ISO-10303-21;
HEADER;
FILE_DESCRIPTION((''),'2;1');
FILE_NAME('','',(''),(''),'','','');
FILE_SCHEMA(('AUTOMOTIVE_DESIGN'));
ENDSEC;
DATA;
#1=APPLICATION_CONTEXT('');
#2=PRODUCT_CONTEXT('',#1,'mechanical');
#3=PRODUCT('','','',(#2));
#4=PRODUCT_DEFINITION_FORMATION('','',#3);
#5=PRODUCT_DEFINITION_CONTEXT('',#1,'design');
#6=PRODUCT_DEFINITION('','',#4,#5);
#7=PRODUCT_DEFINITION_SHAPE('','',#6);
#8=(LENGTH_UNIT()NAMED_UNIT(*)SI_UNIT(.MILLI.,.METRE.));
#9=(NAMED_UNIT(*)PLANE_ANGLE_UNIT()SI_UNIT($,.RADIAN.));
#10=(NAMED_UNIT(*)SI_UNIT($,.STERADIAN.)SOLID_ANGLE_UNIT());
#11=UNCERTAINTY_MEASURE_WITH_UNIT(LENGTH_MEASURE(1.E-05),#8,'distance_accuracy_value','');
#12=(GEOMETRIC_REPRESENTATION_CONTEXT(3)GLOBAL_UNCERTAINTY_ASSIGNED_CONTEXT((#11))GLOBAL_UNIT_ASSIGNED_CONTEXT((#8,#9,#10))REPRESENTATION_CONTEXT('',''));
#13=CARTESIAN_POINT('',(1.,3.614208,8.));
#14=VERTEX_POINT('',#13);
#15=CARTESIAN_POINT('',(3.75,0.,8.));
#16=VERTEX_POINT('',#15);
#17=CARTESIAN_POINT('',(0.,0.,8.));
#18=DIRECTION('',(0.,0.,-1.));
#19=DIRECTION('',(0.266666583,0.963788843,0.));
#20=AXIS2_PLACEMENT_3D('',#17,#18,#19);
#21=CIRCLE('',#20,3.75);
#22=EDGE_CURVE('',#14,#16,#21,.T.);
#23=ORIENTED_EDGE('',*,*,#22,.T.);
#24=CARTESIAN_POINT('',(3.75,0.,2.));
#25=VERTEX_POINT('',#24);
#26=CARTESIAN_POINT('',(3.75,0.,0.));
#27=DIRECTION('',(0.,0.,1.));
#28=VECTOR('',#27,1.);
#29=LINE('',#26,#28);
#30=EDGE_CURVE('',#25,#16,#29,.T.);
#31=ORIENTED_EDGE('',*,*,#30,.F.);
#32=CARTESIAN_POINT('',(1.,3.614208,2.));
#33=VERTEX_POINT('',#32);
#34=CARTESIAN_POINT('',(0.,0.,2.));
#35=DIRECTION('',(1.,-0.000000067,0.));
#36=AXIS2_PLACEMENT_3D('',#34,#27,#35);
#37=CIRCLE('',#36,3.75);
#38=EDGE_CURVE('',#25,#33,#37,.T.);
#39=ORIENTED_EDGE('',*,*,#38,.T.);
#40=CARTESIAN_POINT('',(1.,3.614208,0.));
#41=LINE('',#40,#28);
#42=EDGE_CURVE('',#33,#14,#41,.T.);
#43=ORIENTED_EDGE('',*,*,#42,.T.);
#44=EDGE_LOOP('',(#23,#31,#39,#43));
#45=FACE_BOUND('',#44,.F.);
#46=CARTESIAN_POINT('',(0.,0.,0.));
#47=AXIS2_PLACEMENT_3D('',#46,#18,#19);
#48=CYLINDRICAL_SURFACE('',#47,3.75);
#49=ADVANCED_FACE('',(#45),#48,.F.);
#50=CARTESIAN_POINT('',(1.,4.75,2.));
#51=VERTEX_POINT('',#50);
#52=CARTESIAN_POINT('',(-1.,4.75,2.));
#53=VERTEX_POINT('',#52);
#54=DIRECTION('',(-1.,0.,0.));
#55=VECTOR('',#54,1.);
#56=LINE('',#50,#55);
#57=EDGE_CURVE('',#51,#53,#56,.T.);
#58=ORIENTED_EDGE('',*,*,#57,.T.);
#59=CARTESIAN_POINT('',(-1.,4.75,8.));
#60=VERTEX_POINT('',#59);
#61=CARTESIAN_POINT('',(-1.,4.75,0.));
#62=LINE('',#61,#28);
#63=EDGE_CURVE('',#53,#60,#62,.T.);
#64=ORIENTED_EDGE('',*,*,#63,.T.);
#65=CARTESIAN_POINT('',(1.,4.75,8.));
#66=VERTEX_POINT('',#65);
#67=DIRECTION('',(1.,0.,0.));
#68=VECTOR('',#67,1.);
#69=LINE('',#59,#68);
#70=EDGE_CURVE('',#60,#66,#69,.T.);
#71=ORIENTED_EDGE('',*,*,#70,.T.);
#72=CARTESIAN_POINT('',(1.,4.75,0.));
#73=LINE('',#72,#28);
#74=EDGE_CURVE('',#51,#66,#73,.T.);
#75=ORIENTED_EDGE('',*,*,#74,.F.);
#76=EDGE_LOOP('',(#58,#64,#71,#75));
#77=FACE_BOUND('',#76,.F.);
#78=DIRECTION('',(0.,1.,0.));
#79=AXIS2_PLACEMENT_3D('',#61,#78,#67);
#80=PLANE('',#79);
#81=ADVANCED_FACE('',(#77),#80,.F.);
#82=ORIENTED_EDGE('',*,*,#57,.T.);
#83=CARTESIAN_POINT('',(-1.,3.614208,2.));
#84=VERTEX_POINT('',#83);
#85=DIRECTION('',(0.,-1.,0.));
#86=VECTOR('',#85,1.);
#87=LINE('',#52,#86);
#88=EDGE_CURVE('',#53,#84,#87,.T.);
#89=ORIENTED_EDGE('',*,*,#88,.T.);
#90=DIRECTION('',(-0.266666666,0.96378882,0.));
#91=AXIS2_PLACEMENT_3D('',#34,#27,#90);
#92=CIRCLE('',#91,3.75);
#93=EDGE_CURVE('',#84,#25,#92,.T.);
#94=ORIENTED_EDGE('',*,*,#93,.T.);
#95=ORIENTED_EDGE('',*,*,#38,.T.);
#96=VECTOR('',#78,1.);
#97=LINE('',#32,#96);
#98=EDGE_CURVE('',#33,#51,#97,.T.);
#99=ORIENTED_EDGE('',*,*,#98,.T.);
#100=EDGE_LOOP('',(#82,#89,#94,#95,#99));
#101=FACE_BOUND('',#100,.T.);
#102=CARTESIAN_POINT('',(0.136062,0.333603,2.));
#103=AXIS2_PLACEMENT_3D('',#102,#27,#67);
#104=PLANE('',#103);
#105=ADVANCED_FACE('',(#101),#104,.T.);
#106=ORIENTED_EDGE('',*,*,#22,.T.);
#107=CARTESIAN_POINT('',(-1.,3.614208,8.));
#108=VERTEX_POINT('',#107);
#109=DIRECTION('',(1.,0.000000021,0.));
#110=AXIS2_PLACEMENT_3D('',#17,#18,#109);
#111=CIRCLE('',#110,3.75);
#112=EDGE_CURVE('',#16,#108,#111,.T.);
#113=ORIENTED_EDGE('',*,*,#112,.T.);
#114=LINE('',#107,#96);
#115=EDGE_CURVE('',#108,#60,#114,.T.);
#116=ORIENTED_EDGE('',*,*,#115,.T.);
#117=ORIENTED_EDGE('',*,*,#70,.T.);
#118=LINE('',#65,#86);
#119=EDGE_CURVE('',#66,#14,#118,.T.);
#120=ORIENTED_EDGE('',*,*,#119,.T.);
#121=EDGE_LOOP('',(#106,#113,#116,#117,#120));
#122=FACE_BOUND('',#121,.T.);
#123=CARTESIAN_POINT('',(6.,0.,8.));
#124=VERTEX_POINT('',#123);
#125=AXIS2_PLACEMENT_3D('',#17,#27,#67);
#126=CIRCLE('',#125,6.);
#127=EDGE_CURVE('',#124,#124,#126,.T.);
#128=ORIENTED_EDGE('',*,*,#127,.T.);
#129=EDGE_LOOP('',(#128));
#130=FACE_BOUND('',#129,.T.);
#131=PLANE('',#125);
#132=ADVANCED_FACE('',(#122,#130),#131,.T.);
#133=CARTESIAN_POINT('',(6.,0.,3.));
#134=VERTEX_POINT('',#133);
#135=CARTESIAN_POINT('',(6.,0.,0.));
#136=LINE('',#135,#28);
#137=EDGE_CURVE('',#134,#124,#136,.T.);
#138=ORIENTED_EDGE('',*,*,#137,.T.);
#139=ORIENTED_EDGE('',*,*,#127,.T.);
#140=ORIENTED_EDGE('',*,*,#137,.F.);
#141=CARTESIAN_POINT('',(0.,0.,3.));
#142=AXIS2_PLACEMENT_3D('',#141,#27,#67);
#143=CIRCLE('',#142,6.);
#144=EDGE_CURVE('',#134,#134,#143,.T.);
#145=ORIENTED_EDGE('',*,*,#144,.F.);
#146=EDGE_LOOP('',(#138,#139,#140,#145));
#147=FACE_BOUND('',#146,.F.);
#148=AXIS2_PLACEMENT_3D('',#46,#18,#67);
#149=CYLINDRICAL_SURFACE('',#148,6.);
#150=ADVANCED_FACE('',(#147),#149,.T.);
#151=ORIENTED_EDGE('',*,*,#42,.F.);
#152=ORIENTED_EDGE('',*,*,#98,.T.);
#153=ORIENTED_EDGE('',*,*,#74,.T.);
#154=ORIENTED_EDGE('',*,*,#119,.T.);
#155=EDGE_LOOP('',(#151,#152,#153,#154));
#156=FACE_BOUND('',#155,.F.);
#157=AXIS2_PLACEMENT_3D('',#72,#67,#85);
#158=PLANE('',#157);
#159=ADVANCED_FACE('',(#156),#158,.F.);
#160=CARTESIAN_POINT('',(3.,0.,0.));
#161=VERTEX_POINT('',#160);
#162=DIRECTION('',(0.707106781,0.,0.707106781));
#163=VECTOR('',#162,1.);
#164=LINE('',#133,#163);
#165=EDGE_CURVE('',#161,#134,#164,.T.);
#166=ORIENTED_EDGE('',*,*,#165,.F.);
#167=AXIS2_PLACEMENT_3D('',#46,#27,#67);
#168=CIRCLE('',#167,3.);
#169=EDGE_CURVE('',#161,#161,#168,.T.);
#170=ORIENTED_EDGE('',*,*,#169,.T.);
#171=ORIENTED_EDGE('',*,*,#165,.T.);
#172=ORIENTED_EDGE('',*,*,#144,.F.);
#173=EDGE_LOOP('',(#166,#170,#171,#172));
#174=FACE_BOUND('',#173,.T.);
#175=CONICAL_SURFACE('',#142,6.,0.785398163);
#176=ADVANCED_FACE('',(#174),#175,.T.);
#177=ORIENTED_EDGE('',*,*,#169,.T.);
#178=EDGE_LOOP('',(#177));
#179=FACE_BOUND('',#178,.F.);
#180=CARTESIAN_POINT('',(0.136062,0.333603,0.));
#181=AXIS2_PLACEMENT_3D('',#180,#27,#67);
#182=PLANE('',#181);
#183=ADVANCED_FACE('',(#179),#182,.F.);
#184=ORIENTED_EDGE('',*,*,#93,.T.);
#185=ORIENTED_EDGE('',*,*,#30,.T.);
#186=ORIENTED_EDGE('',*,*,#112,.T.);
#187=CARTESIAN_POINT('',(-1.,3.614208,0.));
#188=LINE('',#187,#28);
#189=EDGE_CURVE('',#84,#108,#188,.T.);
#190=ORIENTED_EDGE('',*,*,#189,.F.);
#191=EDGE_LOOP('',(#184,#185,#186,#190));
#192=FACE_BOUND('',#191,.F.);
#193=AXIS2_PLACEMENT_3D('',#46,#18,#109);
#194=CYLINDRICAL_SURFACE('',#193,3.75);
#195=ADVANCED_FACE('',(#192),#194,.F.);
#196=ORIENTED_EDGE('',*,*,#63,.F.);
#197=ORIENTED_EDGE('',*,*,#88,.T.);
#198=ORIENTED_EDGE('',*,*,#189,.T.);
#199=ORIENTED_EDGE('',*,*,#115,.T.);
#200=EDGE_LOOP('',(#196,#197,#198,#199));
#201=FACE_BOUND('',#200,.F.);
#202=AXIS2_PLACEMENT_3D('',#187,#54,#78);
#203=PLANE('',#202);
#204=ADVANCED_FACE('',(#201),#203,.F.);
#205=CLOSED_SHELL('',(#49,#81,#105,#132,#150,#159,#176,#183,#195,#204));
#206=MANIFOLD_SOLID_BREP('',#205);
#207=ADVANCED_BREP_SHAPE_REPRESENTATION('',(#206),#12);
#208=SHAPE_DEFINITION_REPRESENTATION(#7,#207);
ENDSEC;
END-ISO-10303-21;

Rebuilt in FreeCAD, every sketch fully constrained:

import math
import FreeCAD as App
import Part
import Sketcher
from FreeCAD import Vector
Q = App.Units.Quantity


def edges_at(feature, points):
    """Names of the edges that pass closest to the given points."""
    edges = feature.Shape.Edges
    near = lambda p: min(range(len(edges)), key=lambda i: edges[i].distToShape(Part.Vertex(*p))[0])
    return sorted({f"Edge{near(p) + 1}" for p in points})

doc = App.newDocument("Part")
params = doc.addObject("Spreadsheet::Sheet", "Params")
for row, (alias, value) in enumerate([
    ("sketch1_diameter", "12 mm"),
    ("sketch1_width", "2 mm"),
    ("sketch1_radius", "3.75 mm"),
    ("pad1_length", "8 mm"),
    ("sketch2_width", "2 mm"),
    ("sketch2_radius", "3.75 mm"),
    ("pad2_length", "2 mm"),
    ("chamfer_size", "3 mm"),
], start=1):
    params.set(f"A{row}", alias)
    params.set(f"B{row}", "=" + value)
    params.setAlias(f"B{row}", alias)

body = doc.addObject("PartDesign::Body", "Body")

sketch1 = body.newObject("Sketcher::SketchObject", "Sketch")
sketch1.AttachmentSupport = (doc.getObject("XY_Plane"), [""])
sketch1.MapMode = "FlatFace"
sketch1.addGeometry([
    Part.Circle(Vector(0, 0, 0), Vector(0, 0, 1), 6),
    Part.LineSegment(Vector(1, 4.8, 0), Vector(1, 3.6, 0)),
    Part.ArcOfCircle(Part.Circle(Vector(0, 0, 0), Vector(0, 0, 1), 3.7), math.radians(0), math.radians(75)),
    Part.ArcOfCircle(Part.Circle(Vector(0, 0, 0), Vector(0, 0, 1), 3.8), math.radians(105), math.radians(360)),
    Part.LineSegment(Vector(-1, 3.6, 0), Vector(-1, 4.8, 0)),
    Part.LineSegment(Vector(-1, 4.8, 0), Vector(1, 4.8, 0)),
], False)
sketch1.addConstraint([
    Sketcher.Constraint("Coincident", 1, 2, 2, 2),
    Sketcher.Constraint("Tangent", 2, 1, 3, 2),
    Sketcher.Constraint("Coincident", 3, 1, 4, 1),
    Sketcher.Constraint("Coincident", 4, 2, 5, 1),
    Sketcher.Constraint("Coincident", 5, 2, 1, 1),
    Sketcher.Constraint("Vertical", 1),
    Sketcher.Constraint("Vertical", 4),
    Sketcher.Constraint("Horizontal", 5),
    Sketcher.Constraint("Coincident", 0, 3, -1, 1),
    Sketcher.Constraint("Coincident", 2, 3, -1, 1),
    Sketcher.Constraint("Equal", 2, 3),
    Sketcher.Constraint("PointOnObject", 2, 1, -1),
    Sketcher.Constraint("Horizontal", 1, 2, 3, 1),
    Sketcher.Constraint("Diameter", 0, Q("12 mm")),
    Sketcher.Constraint("DistanceX", 5, 1, 5, 2, Q("2 mm")),
    Sketcher.Constraint("Radius", 2, Q("3.75 mm")),
    Sketcher.Constraint("DistanceY", -1, 1, 4, 2, Q("4.75 mm")),
])
sketch1.setExpression("Constraints[13]", "Params.sketch1_diameter")
sketch1.setExpression("Constraints[14]", "Params.sketch1_width")
sketch1.setExpression("Constraints[15]", "Params.sketch1_radius")
pad1 = body.newObject("PartDesign::Pad", "Pad")
pad1.Profile = sketch1
pad1.setExpression("Length", "Params.pad1_length")

sketch2 = body.newObject("Sketcher::SketchObject", "Sketch001")
sketch2.AttachmentSupport = (doc.getObject("XY_Plane"), [""])
sketch2.MapMode = "FlatFace"
sketch2.addGeometry([
    Part.ArcOfCircle(Part.Circle(Vector(0, 0, 0), Vector(0, 0, 1), 3.8), math.radians(105), math.radians(360)),
    Part.ArcOfCircle(Part.Circle(Vector(0, 0, 0), Vector(0, 0, 1), 3.7), math.radians(0), math.radians(75)),
    Part.LineSegment(Vector(1, 3.6, 0), Vector(1, 4.8, 0)),
    Part.LineSegment(Vector(1, 4.8, 0), Vector(-1, 4.8, 0)),
    Part.LineSegment(Vector(-1, 4.8, 0), Vector(-1, 3.6, 0)),
], False)
sketch2.addConstraint([
    Sketcher.Constraint("Tangent", 0, 2, 1, 1),
    Sketcher.Constraint("Coincident", 1, 2, 2, 1),
    Sketcher.Constraint("Coincident", 2, 2, 3, 1),
    Sketcher.Constraint("Coincident", 3, 2, 4, 1),
    Sketcher.Constraint("Coincident", 4, 2, 0, 1),
    Sketcher.Constraint("Vertical", 2),
    Sketcher.Constraint("Horizontal", 3),
    Sketcher.Constraint("Vertical", 4),
    Sketcher.Constraint("Coincident", 0, 3, -1, 1),
    Sketcher.Constraint("Equal", 0, 1),
    Sketcher.Constraint("PointOnObject", 0, 2, -1),
    Sketcher.Constraint("Horizontal", 1, 2, 4, 2),
    Sketcher.Constraint("DistanceX", 3, 2, 3, 1, Q("2 mm")),
    Sketcher.Constraint("Radius", 0, Q("3.75 mm")),
    Sketcher.Constraint("DistanceY", -1, 1, 2, 2, Q("4.75 mm")),
])
sketch2.setExpression("Constraints[12]", "Params.sketch2_width")
sketch2.setExpression("Constraints[13]", "Params.sketch2_radius")
pad2 = body.newObject("PartDesign::Pad", "Pad001")
pad2.Profile = sketch2
pad2.setExpression("Length", "Params.pad2_length")
doc.recompute()

chamfer = body.newObject("PartDesign::Chamfer", "Chamfer")
chamfer.Base = (pad2, edges_at(pad2, [(-6, 0, 0)]))
chamfer.setExpression("Size", "Params.chamfer_size")

doc.recompute()
